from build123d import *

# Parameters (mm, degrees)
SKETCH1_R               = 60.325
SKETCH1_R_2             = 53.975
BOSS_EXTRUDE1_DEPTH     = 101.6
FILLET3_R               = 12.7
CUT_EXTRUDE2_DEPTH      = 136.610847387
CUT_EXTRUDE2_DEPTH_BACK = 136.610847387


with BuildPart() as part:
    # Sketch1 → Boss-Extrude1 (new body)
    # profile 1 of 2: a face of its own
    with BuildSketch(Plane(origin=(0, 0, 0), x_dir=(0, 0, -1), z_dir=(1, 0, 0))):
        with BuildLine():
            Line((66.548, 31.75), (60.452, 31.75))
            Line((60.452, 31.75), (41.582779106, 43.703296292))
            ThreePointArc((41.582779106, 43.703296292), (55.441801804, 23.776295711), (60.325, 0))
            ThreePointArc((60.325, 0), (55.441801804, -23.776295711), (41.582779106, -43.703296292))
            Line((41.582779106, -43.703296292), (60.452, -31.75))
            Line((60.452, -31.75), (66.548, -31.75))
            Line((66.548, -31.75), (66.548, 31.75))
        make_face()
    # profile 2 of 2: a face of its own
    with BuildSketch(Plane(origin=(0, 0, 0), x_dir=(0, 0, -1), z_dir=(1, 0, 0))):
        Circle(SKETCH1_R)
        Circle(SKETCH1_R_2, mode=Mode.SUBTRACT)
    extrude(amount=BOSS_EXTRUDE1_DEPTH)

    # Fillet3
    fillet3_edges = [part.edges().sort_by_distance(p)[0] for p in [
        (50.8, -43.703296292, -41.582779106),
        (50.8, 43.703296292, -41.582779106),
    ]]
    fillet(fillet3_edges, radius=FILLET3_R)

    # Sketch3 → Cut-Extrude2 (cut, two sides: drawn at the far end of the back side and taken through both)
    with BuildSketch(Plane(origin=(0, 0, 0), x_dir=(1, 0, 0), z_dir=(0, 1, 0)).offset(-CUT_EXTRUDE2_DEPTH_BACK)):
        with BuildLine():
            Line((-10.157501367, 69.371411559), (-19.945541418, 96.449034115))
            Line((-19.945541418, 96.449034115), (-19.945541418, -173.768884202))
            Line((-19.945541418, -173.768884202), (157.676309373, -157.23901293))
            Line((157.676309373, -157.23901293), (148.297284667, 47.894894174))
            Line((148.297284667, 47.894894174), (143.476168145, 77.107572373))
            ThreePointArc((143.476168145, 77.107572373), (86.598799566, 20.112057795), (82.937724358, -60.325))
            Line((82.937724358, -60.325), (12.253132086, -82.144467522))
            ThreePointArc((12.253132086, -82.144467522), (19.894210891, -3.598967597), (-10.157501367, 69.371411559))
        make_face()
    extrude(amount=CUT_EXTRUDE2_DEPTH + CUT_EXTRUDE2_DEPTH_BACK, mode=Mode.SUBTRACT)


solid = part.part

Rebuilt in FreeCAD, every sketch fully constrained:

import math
import FreeCAD as App
import Part
import Sketcher
Q = App.Units.Quantity


def edges_at(feature, points):
    """Names of the edges that pass closest to the given points."""
    edges = feature.Shape.Edges
    near = lambda p: min(range(len(edges)), key=lambda i: edges[i].distToShape(Part.Vertex(*p))[0])
    return sorted({f"Edge{near(p) + 1}" for p in points})

doc = App.newDocument("Part")
body = doc.addObject("PartDesign::Body", "Body")

sketch1 = body.newObject("Sketcher::SketchObject", "Sketch")
sketch1.AttachmentSupport = (doc.getObject("YZ_Plane"), [""])
sketch1.MapMode = "FlatFace"
sketch1.addGeometry([
    Part.LineSegment(App.Vector(32, -67, 0), App.Vector(32, -60, 0)),
    Part.LineSegment(App.Vector(32, -60, 0), App.Vector(44, -42, 0)),
    Part.ArcOfCircle(Part.Circle(App.Vector(0, 0, 0), App.Vector(0, 0, 1), 60), math.radians(-44), math.radians(224)),
    Part.LineSegment(App.Vector(-44, -42, 0), App.Vector(-32, -60, 0)),
    Part.LineSegment(App.Vector(-32, -60, 0), App.Vector(-32, -67, 0)),
    Part.LineSegment(App.Vector(-32, -67, 0), App.Vector(32, -67, 0)),
    Part.Circle(App.Vector(0, 0, 0), App.Vector(0, 0, 1), 54),
], False)
sketch1.addConstraint([
    Sketcher.Constraint("Coincident", 0, 2, 1, 1),
    Sketcher.Constraint("Coincident", 1, 2, 2, 1),
    Sketcher.Constraint("Coincident", 2, 2, 3, 1),
    Sketcher.Constraint("Coincident", 3, 2, 4, 1),
    Sketcher.Constraint("Coincident", 4, 2, 5, 1),
    Sketcher.Constraint("Coincident", 5, 2, 0, 1),
    Sketcher.Constraint("Vertical", 0),
    Sketcher.Constraint("Vertical", 4),
    Sketcher.Constraint("Horizontal", 5),
    Sketcher.Constraint("Coincident", 2, 3, -1, 1),
    Sketcher.Constraint("Coincident", 6, 3, -1, 1),
    Sketcher.Constraint("Symmetric", 0, 2, 3, 2, -2),
    Sketcher.Constraint("Horizontal", 1, 2, 2, 2),
    Sketcher.Constraint("Diameter", 6, Q("4.25 in")),
    Sketcher.Constraint("DistanceX", 5, 1, 5, 2, Q("2.5 in")),
    Sketcher.Constraint("Radius", 2, Q("2.375 in")),
    Sketcher.Constraint("DistanceY", 0, 1, 0, 2, Q("0.24 in")),
    Sketcher.Constraint("DistanceY", 0, 2, -1, 1, Q("2.38 in")),
    Sketcher.Constraint("DistanceY", 1, 2, -1, 1, Q("41.582779 mm")),
])
pad1 = body.newObject("PartDesign::Pad", "Pad")
pad1.Profile = sketch1
pad1.Length = Q("4 in")
doc.recompute()

fillet = body.newObject("PartDesign::Fillet", "Fillet")
fillet.Base = (pad1, edges_at(pad1, [(50.8, -43.703, -41.583), (50.8, 43.703, -41.583)]))
fillet.Radius = Q("0.5 in")

sketch2 = body.newObject("Sketcher::SketchObject", "Sketch001")
sketch2.AttachmentSupport = (doc.getObject("XZ_Plane"), [""])
sketch2.MapMode = "FlatFace"
sketch2.addGeometry([
    Part.LineSegment(App.Vector(-10, -69, 0), App.Vector(-20, -96, 0)),
    Part.LineSegment(App.Vector(-20, -96, 0), App.Vector(-20, 174, 0)),
    Part.LineSegment(App.Vector(-20, 174, 0), App.Vector(158, 157, 0)),
    Part.LineSegment(App.Vector(158, 157, 0), App.Vector(148, -48, 0)),
    Part.LineSegment(App.Vector(148, -48, 0), App.Vector(143, -77, 0)),
    Part.ArcOfCircle(Part.Circle(App.Vector(189, 25, 0), App.Vector(0, 0, 1), 111), math.radians(161), math.radians(246)),
    Part.LineSegment(App.Vector(83, 60, 0), App.Vector(12, 82, 0)),
    Part.ArcOfCircle(Part.Circle(App.Vector(-142, 28, 0), App.Vector(0, 0, 1), 163), math.radians(-36), math.radians(20)),
], False)
sketch2.addConstraint([
    Sketcher.Constraint("Coincident", 0, 2, 1, 1),
    Sketcher.Constraint("Coincident", 1, 2, 2, 1),
    Sketcher.Constraint("Coincident", 2, 2, 3, 1),
    Sketcher.Constraint("Coincident", 3, 2, 4, 1),
    Sketcher.Constraint("Coincident", 4, 2, 5, 2),
    Sketcher.Constraint("Coincident", 5, 1, 6, 1),
    Sketcher.Constraint("Coincident", 6, 2, 7, 2),
    Sketcher.Constraint("Coincident", 7, 1, 0, 1),
    Sketcher.Constraint("Vertical", 1),
    Sketcher.Constraint("DistanceY", -1, 1, 5, 1, Q("2.375 in")),
    Sketcher.Constraint("Radius", 5, Q("111.495594 mm")),
    Sketcher.Constraint("Radius", 7, Q("163.446537 mm")),
    Sketcher.Constraint("DistanceY", 1, 1, 1, 2, Q("270.217918 mm")),
    Sketcher.Constraint("DistanceX", 7, 1, -1, 1, Q("10.157501 mm")),
    Sketcher.Constraint("DistanceX", 7, 3, 5, 3, Q("330.427002 mm")),
    Sketcher.Constraint("DistanceY", 5, 3, 1, 2, Q("148.934998 mm")),
    Sketcher.Constraint("DistanceY", 0, 2, 6, 2, Q("178.593502 mm")),
    Sketcher.Constraint("Distance", 0, Q("28.792419 mm")),
    Sketcher.Constraint("DistanceX", 7, 3, -1, 1, Q("141.793259 mm")),
    Sketcher.Constraint("DistanceX", 0, 2, -1, 1, Q("19.945541 mm")),
    Sketcher.Constraint("DistanceX", -1, 1, 2, 2, Q("157.676309 mm")),
    Sketcher.Constraint("DistanceX", -1, 1, 4, 2, Q("143.476168 mm")),
    Sketcher.Constraint("DistanceY", 7, 1, -1, 1, Q("69.371412 mm")),
    Sketcher.Constraint("DistanceY", 2, 2, 1, 2, Q("16.529871 mm")),
    Sketcher.Constraint("DistanceY", 3, 2, 5, 3, Q("72.72878 mm")),
    Sketcher.Constraint("DistanceX", 5, 1, 3, 2, Q("65.35956 mm")),
])
pocket1 = body.newObject("PartDesign::Pocket", "Pocket")
pocket1.Profile = sketch2
pocket1.Type = "ThroughAll"
pocket1.Midplane = True

doc.recompute()
